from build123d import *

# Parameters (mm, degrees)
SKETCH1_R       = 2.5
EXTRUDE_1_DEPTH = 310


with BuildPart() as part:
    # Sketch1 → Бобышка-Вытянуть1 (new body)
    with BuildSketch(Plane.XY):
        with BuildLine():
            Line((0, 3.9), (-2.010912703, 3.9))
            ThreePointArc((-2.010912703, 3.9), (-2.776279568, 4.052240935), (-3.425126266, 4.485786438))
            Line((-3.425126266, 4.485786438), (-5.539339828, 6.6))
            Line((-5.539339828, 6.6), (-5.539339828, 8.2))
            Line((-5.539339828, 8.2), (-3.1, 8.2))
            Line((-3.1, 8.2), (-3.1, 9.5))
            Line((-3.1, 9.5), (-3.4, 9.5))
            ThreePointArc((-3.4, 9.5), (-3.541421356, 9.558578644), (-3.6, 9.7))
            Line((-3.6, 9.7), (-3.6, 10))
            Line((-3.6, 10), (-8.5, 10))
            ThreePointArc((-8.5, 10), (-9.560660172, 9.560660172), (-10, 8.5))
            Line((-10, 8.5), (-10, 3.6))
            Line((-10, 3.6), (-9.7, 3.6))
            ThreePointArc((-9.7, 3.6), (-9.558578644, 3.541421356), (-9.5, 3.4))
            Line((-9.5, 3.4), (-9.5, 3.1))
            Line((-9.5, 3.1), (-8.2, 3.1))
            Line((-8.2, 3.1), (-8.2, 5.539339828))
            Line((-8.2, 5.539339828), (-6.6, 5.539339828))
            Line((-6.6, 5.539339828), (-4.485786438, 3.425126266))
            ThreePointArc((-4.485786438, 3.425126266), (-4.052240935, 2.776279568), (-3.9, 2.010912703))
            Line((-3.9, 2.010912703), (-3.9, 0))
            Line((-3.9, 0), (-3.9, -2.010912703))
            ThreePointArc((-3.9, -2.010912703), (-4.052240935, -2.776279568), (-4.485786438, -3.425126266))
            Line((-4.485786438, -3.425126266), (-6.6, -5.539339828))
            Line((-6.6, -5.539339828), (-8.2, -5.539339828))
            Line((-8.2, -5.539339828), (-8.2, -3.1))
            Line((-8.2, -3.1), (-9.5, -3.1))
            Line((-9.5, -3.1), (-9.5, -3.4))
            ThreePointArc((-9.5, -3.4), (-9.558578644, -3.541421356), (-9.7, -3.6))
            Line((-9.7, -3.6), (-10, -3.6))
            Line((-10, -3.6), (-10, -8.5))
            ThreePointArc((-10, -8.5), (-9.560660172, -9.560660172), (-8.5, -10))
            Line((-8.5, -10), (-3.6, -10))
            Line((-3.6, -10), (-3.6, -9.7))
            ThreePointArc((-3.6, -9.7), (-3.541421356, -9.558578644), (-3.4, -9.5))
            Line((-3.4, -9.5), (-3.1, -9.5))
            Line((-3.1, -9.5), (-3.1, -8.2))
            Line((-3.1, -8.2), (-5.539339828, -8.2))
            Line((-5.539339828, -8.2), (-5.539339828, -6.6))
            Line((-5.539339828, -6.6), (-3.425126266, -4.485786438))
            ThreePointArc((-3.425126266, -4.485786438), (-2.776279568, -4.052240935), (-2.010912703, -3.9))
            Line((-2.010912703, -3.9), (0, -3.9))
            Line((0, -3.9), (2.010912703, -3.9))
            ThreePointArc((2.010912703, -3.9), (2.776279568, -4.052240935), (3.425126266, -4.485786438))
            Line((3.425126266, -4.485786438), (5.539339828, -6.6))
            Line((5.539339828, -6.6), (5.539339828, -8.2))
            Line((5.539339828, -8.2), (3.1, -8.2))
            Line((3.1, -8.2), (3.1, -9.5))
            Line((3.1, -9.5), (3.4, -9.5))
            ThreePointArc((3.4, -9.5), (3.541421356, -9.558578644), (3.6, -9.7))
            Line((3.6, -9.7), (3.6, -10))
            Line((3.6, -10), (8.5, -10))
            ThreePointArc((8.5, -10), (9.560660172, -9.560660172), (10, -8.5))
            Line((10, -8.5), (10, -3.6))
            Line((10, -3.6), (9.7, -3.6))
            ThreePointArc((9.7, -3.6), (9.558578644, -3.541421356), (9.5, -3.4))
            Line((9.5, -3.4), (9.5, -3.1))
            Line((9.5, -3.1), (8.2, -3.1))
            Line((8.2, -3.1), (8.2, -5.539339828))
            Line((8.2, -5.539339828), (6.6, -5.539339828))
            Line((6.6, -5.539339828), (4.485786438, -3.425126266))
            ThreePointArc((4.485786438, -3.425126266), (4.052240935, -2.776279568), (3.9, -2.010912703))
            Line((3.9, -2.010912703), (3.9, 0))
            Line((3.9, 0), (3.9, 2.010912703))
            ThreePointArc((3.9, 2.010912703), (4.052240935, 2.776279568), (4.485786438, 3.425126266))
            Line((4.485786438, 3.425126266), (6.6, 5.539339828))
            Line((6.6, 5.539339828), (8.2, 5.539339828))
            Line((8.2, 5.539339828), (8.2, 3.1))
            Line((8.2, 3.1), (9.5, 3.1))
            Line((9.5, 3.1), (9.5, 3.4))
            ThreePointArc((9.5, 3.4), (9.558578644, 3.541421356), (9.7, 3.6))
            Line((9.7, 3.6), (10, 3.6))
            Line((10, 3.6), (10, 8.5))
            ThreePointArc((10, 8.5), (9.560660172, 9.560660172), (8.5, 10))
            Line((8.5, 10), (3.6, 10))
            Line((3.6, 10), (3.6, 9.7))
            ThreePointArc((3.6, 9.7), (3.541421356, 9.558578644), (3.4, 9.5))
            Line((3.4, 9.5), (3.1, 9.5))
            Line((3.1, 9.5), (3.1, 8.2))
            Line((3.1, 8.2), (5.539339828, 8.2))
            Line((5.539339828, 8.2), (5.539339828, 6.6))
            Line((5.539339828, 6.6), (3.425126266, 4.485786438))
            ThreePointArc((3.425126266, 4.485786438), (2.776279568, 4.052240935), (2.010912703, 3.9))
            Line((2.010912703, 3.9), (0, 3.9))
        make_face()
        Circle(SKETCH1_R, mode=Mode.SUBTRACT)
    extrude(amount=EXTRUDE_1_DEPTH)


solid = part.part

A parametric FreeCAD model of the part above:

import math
import FreeCAD as App
import Part
import Sketcher
Q = App.Units.Quantity

doc = App.newDocument("Part")
body = doc.addObject("PartDesign::Body", "Body")

sketch1 = body.newObject("Sketcher::SketchObject", "Sketch")
sketch1.AttachmentSupport = (doc.getObject("XY_Plane"), [""])
sketch1.MapMode = "FlatFace"
sketch1.addGeometry([
    Part.ArcOfCircle(Part.Circle(App.Vector(-2.01, 5.9, 0), App.Vector(0, 0, 1), 2), math.radians(-135), math.radians(-90)),
    Part.LineSegment(App.Vector(-3.43, 4.49, 0), App.Vector(-5.54, 6.6, 0)),
    Part.LineSegment(App.Vector(-5.54, 6.6, 0), App.Vector(-5.54, 8.2, 0)),
    Part.LineSegment(App.Vector(-5.54, 8.2, 0), App.Vector(-3.1, 8.2, 0)),
    Part.LineSegment(App.Vector(-3.1, 8.2, 0), App.Vector(-3.1, 9.5, 0)),
    Part.LineSegment(App.Vector(-3.1, 9.5, 0), App.Vector(-3.4, 9.5, 0)),
    Part.ArcOfCircle(Part.Circle(App.Vector(-3.4, 9.7, 0), App.Vector(0, 0, 1), 0.2), math.radians(-180), math.radians(-90)),
    Part.LineSegment(App.Vector(-3.6, 9.7, 0), App.Vector(-3.6, 10, 0)),
    Part.LineSegment(App.Vector(-3.6, 10, 0), App.Vector(-8.5, 10, 0)),
    Part.ArcOfCircle(Part.Circle(App.Vector(-8.5, 8.5, 0), App.Vector(0, 0, 1), 1.5), math.radians(90), math.radians(180)),
    Part.LineSegment(App.Vector(-10, 8.5, 0), App.Vector(-10, 3.6, 0)),
    Part.LineSegment(App.Vector(-10, 3.6, 0), App.Vector(-9.7, 3.6, 0)),
    Part.ArcOfCircle(Part.Circle(App.Vector(-9.7, 3.4, 0), App.Vector(0, 0, 1), 0.2), math.radians(0), math.radians(90)),
    Part.LineSegment(App.Vector(-9.5, 3.4, 0), App.Vector(-9.5, 3.1, 0)),
    Part.LineSegment(App.Vector(-9.5, 3.1, 0), App.Vector(-8.2, 3.1, 0)),
    Part.LineSegment(App.Vector(-8.2, 3.1, 0), App.Vector(-8.2, 5.54, 0)),
    Part.LineSegment(App.Vector(-8.2, 5.54, 0), App.Vector(-6.6, 5.54, 0)),
    Part.LineSegment(App.Vector(-6.6, 5.54, 0), App.Vector(-4.49, 3.43, 0)),
    Part.ArcOfCircle(Part.Circle(App.Vector(-5.9, 2.01, 0), App.Vector(0, 0, 1), 2), math.radians(0), math.radians(45)),
    Part.LineSegment(App.Vector(-3.9, 2.01, 0), App.Vector(-3.9, -2.01, 0)),
    Part.ArcOfCircle(Part.Circle(App.Vector(-5.9, -2.01, 0), App.Vector(0, 0, 1), 2), math.radians(-45), math.radians(0)),
    Part.LineSegment(App.Vector(-4.49, -3.43, 0), App.Vector(-6.6, -5.54, 0)),
    Part.LineSegment(App.Vector(-6.6, -5.54, 0), App.Vector(-8.2, -5.54, 0)),
    Part.LineSegment(App.Vector(-8.2, -5.54, 0), App.Vector(-8.2, -3.1, 0)),
    Part.LineSegment(App.Vector(-8.2, -3.1, 0), App.Vector(-9.5, -3.1, 0)),
    Part.LineSegment(App.Vector(-9.5, -3.1, 0), App.Vector(-9.5, -3.4, 0)),
    Part.ArcOfCircle(Part.Circle(App.Vector(-9.7, -3.4, 0), App.Vector(0, 0, 1), 0.2), math.radians(-90), math.radians(0)),
    Part.LineSegment(App.Vector(-9.7, -3.6, 0), App.Vector(-10, -3.6, 0)),
    Part.LineSegment(App.Vector(-10, -3.6, 0), App.Vector(-10, -8.5, 0)),
    Part.ArcOfCircle(Part.Circle(App.Vector(-8.5, -8.5, 0), App.Vector(0, 0, 1), 1.5), math.radians(180), math.radians(270)),
    Part.LineSegment(App.Vector(-8.5, -10, 0), App.Vector(-3.6, -10, 0)),
    Part.LineSegment(App.Vector(-3.6, -10, 0), App.Vector(-3.6, -9.7, 0)),
    Part.ArcOfCircle(Part.Circle(App.Vector(-3.4, -9.7, 0), App.Vector(0, 0, 1), 0.2), math.radians(90), math.radians(180)),
    Part.LineSegment(App.Vector(-3.4, -9.5, 0), App.Vector(-3.1, -9.5, 0)),
    Part.LineSegment(App.Vector(-3.1, -9.5, 0), App.Vector(-3.1, -8.2, 0)),
    Part.LineSegment(App.Vector(-3.1, -8.2, 0), App.Vector(-5.54, -8.2, 0)),
    Part.LineSegment(App.Vector(-5.54, -8.2, 0), App.Vector(-5.54, -6.6, 0)),
    Part.LineSegment(App.Vector(-5.54, -6.6, 0), App.Vector(-3.43, -4.49, 0)),
    Part.ArcOfCircle(Part.Circle(App.Vector(-2.01, -5.9, 0), App.Vector(0, 0, 1), 2), math.radians(90), math.radians(135)),
    Part.LineSegment(App.Vector(-2.01, -3.9, 0), App.Vector(2.01, -3.9, 0)),
    Part.ArcOfCircle(Part.Circle(App.Vector(2.01, -5.9, 0), App.Vector(0, 0, 1), 2), math.radians(45), math.radians(90)),
    Part.LineSegment(App.Vector(3.43, -4.49, 0), App.Vector(5.54, -6.6, 0)),
    Part.LineSegment(App.Vector(5.54, -6.6, 0), App.Vector(5.54, -8.2, 0)),
    Part.LineSegment(App.Vector(5.54, -8.2, 0), App.Vector(3.1, -8.2, 0)),
    Part.LineSegment(App.Vector(3.1, -8.2, 0), App.Vector(3.1, -9.5, 0)),
    Part.LineSegment(App.Vector(3.1, -9.5, 0), App.Vector(3.4, -9.5, 0)),
    Part.ArcOfCircle(Part.Circle(App.Vector(3.4, -9.7, 0), App.Vector(0, 0, 1), 0.2), math.radians(0), math.radians(90)),
    Part.LineSegment(App.Vector(3.6, -9.7, 0), App.Vector(3.6, -10, 0)),
    Part.LineSegment(App.Vector(3.6, -10, 0), App.Vector(8.5, -10, 0)),
    Part.ArcOfCircle(Part.Circle(App.Vector(8.5, -8.5, 0), App.Vector(0, 0, 1), 1.5), math.radians(-90), math.radians(0)),
    Part.LineSegment(App.Vector(10, -8.5, 0), App.Vector(10, -3.6, 0)),
    Part.LineSegment(App.Vector(10, -3.6, 0), App.Vector(9.7, -3.6, 0)),
    Part.ArcOfCircle(Part.Circle(App.Vector(9.7, -3.4, 0), App.Vector(0, 0, 1), 0.2), math.radians(-180), math.radians(-90)),
    Part.LineSegment(App.Vector(9.5, -3.4, 0), App.Vector(9.5, -3.1, 0)),
    Part.LineSegment(App.Vector(9.5, -3.1, 0), App.Vector(8.2, -3.1, 0)),
    Part.LineSegment(App.Vector(8.2, -3.1, 0), App.Vector(8.2, -5.54, 0)),
    Part.LineSegment(App.Vector(8.2, -5.54, 0), App.Vector(6.6, -5.54, 0)),
    Part.LineSegment(App.Vector(6.6, -5.54, 0), App.Vector(4.49, -3.43, 0)),
    Part.ArcOfCircle(Part.Circle(App.Vector(5.9, -2.01, 0), App.Vector(0, 0, 1), 2), math.radians(180), math.radians(225)),
    Part.LineSegment(App.Vector(3.9, -2.01, 0), App.Vector(3.9, 2.01, 0)),
    Part.ArcOfCircle(Part.Circle(App.Vector(5.9, 2.01, 0), App.Vector(0, 0, 1), 2), math.radians(135), math.radians(180)),
    Part.LineSegment(App.Vector(4.49, 3.43, 0), App.Vector(6.6, 5.54, 0)),
    Part.LineSegment(App.Vector(6.6, 5.54, 0), App.Vector(8.2, 5.54, 0)),
    Part.LineSegment(App.Vector(8.2, 5.54, 0), App.Vector(8.2, 3.1, 0)),
    Part.LineSegment(App.Vector(8.2, 3.1, 0), App.Vector(9.5, 3.1, 0)),
    Part.LineSegment(App.Vector(9.5, 3.1, 0), App.Vector(9.5, 3.4, 0)),
    Part.ArcOfCircle(Part.Circle(App.Vector(9.7, 3.4, 0), App.Vector(0, 0, 1), 0.2), math.radians(90), math.radians(180)),
    Part.LineSegment(App.Vector(9.7, 3.6, 0), App.Vector(10, 3.6, 0)),
    Part.LineSegment(App.Vector(10, 3.6, 0), App.Vector(10, 8.5, 0)),
    Part.ArcOfCircle(Part.Circle(App.Vector(8.5, 8.5, 0), App.Vector(0, 0, 1), 1.5), math.radians(0), math.radians(90)),
    Part.LineSegment(App.Vector(8.5, 10, 0), App.Vector(3.6, 10, 0)),
    Part.LineSegment(App.Vector(3.6, 10, 0), App.Vector(3.6, 9.7, 0)),
    Part.ArcOfCircle(Part.Circle(App.Vector(3.4, 9.7, 0), App.Vector(0, 0, 1), 0.2), math.radians(-90), math.radians(0)),
    Part.LineSegment(App.Vector(3.4, 9.5, 0), App.Vector(3.1, 9.5, 0)),
    Part.LineSegment(App.Vector(3.1, 9.5, 0), App.Vector(3.1, 8.2, 0)),
    Part.LineSegment(App.Vector(3.1, 8.2, 0), App.Vector(5.54, 8.2, 0)),
    Part.LineSegment(App.Vector(5.54, 8.2, 0), App.Vector(5.54, 6.6, 0)),
    Part.LineSegment(App.Vector(5.54, 6.6, 0), App.Vector(3.43, 4.49, 0)),
    Part.ArcOfCircle(Part.Circle(App.Vector(2.01, 5.9, 0), App.Vector(0, 0, 1), 2), math.radians(-90), math.radians(-45)),
    Part.LineSegment(App.Vector(2.01, 3.9, 0), App.Vector(-2.01, 3.9, 0)),
    Part.Circle(App.Vector(0, 0, 0), App.Vector(0, 0, 1), 2.5),
], False)
sketch1.addConstraint([
    Sketcher.Constraint("Tangent", 0, 1, 1, 1),
    Sketcher.Constraint("Coincident", 1, 2, 2, 1),
    Sketcher.Constraint("Coincident", 2, 2, 3, 1),
    Sketcher.Constraint("Coincident", 3, 2, 4, 1),
    Sketcher.Constraint("Coincident", 4, 2, 5, 1),
    Sketcher.Constraint("Tangent", 5, 2, 6, 2),
    Sketcher.Constraint("Tangent", 6, 1, 7, 1),
    Sketcher.Constraint("Coincident", 7, 2, 8, 1),
    Sketcher.Constraint("Tangent", 8, 2, 9, 1),
    Sketcher.Constraint("Tangent", 9, 2, 10, 1),
    Sketcher.Constraint("Coincident", 10, 2, 11, 1),
    Sketcher.Constraint("Tangent", 11, 2, 12, 2),
    Sketcher.Constraint("Tangent", 12, 1, 13, 1),
    Sketcher.Constraint("Coincident", 13, 2, 14, 1),
    Sketcher.Constraint("Coincident", 14, 2, 15, 1),
    Sketcher.Constraint("Coincident", 15, 2, 16, 1),
    Sketcher.Constraint("Coincident", 16, 2, 17, 1),
    Sketcher.Constraint("Tangent", 17, 2, 18, 2),
    Sketcher.Constraint("Tangent", 18, 1, 19, 1),
    Sketcher.Constraint("Tangent", 19, 2, 20, 2),
    Sketcher.Constraint("Tangent", 20, 1, 21, 1),
    Sketcher.Constraint("Coincident", 21, 2, 22, 1),
    Sketcher.Constraint("Coincident", 22, 2, 23, 1),
    Sketcher.Constraint("Coincident", 23, 2, 24, 1),
    Sketcher.Constraint("Coincident", 24, 2, 25, 1),
    Sketcher.Constraint("Tangent", 25, 2, 26, 2),
    Sketcher.Constraint("Tangent", 26, 1, 27, 1),
    Sketcher.Constraint("Coincident", 27, 2, 28, 1),
    Sketcher.Constraint("Tangent", 28, 2, 29, 1),
    Sketcher.Constraint("Tangent", 29, 2, 30, 1),
    Sketcher.Constraint("Coincident", 30, 2, 31, 1),
    Sketcher.Constraint("Tangent", 31, 2, 32, 2),
    Sketcher.Constraint("Tangent", 32, 1, 33, 1),
    Sketcher.Constraint("Coincident", 33, 2, 34, 1),
    Sketcher.Constraint("Coincident", 34, 2, 35, 1),
    Sketcher.Constraint("Coincident", 35, 2, 36, 1),
    Sketcher.Constraint("Coincident", 36, 2, 37, 1),
    Sketcher.Constraint("Tangent", 37, 2, 38, 2),
    Sketcher.Constraint("Tangent", 38, 1, 39, 1),
    Sketcher.Constraint("Tangent", 39, 2, 40, 2),
    Sketcher.Constraint("Tangent", 40, 1, 41, 1),
    Sketcher.Constraint("Coincident", 41, 2, 42, 1),
    Sketcher.Constraint("Coincident", 42, 2, 43, 1),
    Sketcher.Constraint("Coincident", 43, 2, 44, 1),
    Sketcher.Constraint("Coincident", 44, 2, 45, 1),
    Sketcher.Constraint("Tangent", 45, 2, 46, 2),
    Sketcher.Constraint("Tangent", 46, 1, 47, 1),
    Sketcher.Constraint("Coincident", 47, 2, 48, 1),
    Sketcher.Constraint("Tangent", 48, 2, 49, 1),
    Sketcher.Constraint("Tangent", 49, 2, 50, 1),
    Sketcher.Constraint("Coincident", 50, 2, 51, 1),
    Sketcher.Constraint("Tangent", 51, 2, 52, 2),
    Sketcher.Constraint("Tangent", 52, 1, 53, 1),
    Sketcher.Constraint("Coincident", 53, 2, 54, 1),
    Sketcher.Constraint("Coincident", 54, 2, 55, 1),
    Sketcher.Constraint("Coincident", 55, 2, 56, 1),
    Sketcher.Constraint("Coincident", 56, 2, 57, 1),
    Sketcher.Constraint("Tangent", 57, 2, 58, 2),
    Sketcher.Constraint("Tangent", 58, 1, 59, 1),
    Sketcher.Constraint("Tangent", 59, 2, 60, 2),
    Sketcher.Constraint("Tangent", 60, 1, 61, 1),
    Sketcher.Constraint("Coincident", 61, 2, 62, 1),
    Sketcher.Constraint("Coincident", 62, 2, 63, 1),
    Sketcher.Constraint("Coincident", 63, 2, 64, 1),
    Sketcher.Constraint("Coincident", 64, 2, 65, 1),
    Sketcher.Constraint("Tangent", 65, 2, 66, 2),
    Sketcher.Constraint("Tangent", 66, 1, 67, 1),
    Sketcher.Constraint("Coincident", 67, 2, 68, 1),
    Sketcher.Constraint("Tangent", 68, 2, 69, 1),
    Sketcher.Constraint("Tangent", 69, 2, 70, 1),
    Sketcher.Constraint("Coincident", 70, 2, 71, 1),
    Sketcher.Constraint("Tangent", 71, 2, 72, 2),
    Sketcher.Constraint("Tangent", 72, 1, 73, 1),
    Sketcher.Constraint("Coincident", 73, 2, 74, 1),
    Sketcher.Constraint("Coincident", 74, 2, 75, 1),
    Sketcher.Constraint("Coincident", 75, 2, 76, 1),
    Sketcher.Constraint("Coincident", 76, 2, 77, 1),
    Sketcher.Constraint("Tangent", 77, 2, 78, 2),
    Sketcher.Constraint("Tangent", 78, 1, 79, 1),
    Sketcher.Constraint("Tangent", 79, 2, 0, 2),
    Sketcher.Constraint("Vertical", 2),
    Sketcher.Constraint("Horizontal", 3),
    Sketcher.Constraint("Vertical", 4),
    Sketcher.Constraint("Horizontal", 5),
    Sketcher.Constraint("Vertical", 7),
    Sketcher.Constraint("Horizontal", 8),
    Sketcher.Constraint("Vertical", 10),
    Sketcher.Constraint("Horizontal", 11),
    Sketcher.Constraint("Vertical", 13),
    Sketcher.Constraint("Horizontal", 14),
    Sketcher.Constraint("Vertical", 15),
    Sketcher.Constraint("Horizontal", 16),
    Sketcher.Constraint("Vertical", 19),
    Sketcher.Constraint("Horizontal", 22),
    Sketcher.Constraint("Vertical", 23),
    Sketcher.Constraint("Horizontal", 24),
    Sketcher.Constraint("Vertical", 25),
    Sketcher.Constraint("Horizontal", 27),
    Sketcher.Constraint("Vertical", 28),
    Sketcher.Constraint("Horizontal", 30),
    Sketcher.Constraint("Vertical", 31),
    Sketcher.Constraint("Horizontal", 33),
    Sketcher.Constraint("Vertical", 34),
    Sketcher.Constraint("Horizontal", 35),
    Sketcher.Constraint("Vertical", 36),
    Sketcher.Constraint("Horizontal", 39),
    Sketcher.Constraint("Vertical", 42),
    Sketcher.Constraint("Horizontal", 43),
    Sketcher.Constraint("Vertical", 44),
    Sketcher.Constraint("Horizontal", 45),
    Sketcher.Constraint("Vertical", 47),
    Sketcher.Constraint("Horizontal", 48),
    Sketcher.Constraint("Vertical", 50),
    Sketcher.Constraint("Horizontal", 51),
    Sketcher.Constraint("Vertical", 53),
    Sketcher.Constraint("Horizontal", 54),
    Sketcher.Constraint("Vertical", 55),
    Sketcher.Constraint("Horizontal", 56),
    Sketcher.Constraint("Vertical", 59),
    Sketcher.Constraint("Horizontal", 62),
    Sketcher.Constraint("Vertical", 63),
    Sketcher.Constraint("Horizontal", 64),
    Sketcher.Constraint("Vertical", 65),
    Sketcher.Constraint("Horizontal", 67),
    Sketcher.Constraint("Vertical", 68),
    Sketcher.Constraint("Horizontal", 70),
    Sketcher.Constraint("Vertical", 71),
    Sketcher.Constraint("Horizontal", 73),
    Sketcher.Constraint("Vertical", 74),
    Sketcher.Constraint("Horizontal", 75),
    Sketcher.Constraint("Vertical", 76),
    Sketcher.Constraint("Horizontal", 79),
    Sketcher.Constraint("Coincident", 80, 3, -1, 1),
    Sketcher.Constraint("Equal", 6, 12),
    Sketcher.Constraint("Equal", 0, 18),
    Sketcher.Constraint("Equal", 18, 20),
    Sketcher.Constraint("Equal", 12, 26),
    Sketcher.Constraint("Equal", 9, 29),
    Sketcher.Constraint("Equal", 26, 32),
    Sketcher.Constraint("Equal", 20, 38),
    Sketcher.Constraint("Equal", 38, 40),
    Sketcher.Constraint("Equal", 32, 46),
    Sketcher.Constraint("Equal", 29, 49),
    Sketcher.Constraint("Equal", 46, 52),
    Sketcher.Constraint("Equal", 40, 58),
    Sketcher.Constraint("Equal", 58, 60),
    Sketcher.Constraint("Equal", 52, 66),
    Sketcher.Constraint("Equal", 49, 69),
    Sketcher.Constraint("Equal", 66, 72),
    Sketcher.Constraint("Equal", 60, 78),
    Sketcher.Constraint("Symmetric", 0, 3, 40, 3, -1, 1),
    Sketcher.Constraint("Symmetric", 6, 3, 46, 3, -1, 1),
    Sketcher.Constraint("Symmetric", 9, 3, 49, 3, -1, 1),
    Sketcher.Constraint("Symmetric", 12, 3, 52, 3, -1, 1),
    Sketcher.Constraint("Symmetric", 18, 3, 58, 3, -1, 1),
    Sketcher.Constraint("Symmetric", 26, 3, 66, 3, -1, 1),
    Sketcher.Constraint("Symmetric", 29, 3, 69, 3, -1, 1),
    Sketcher.Constraint("Symmetric", 32, 3, 72, 3, -1, 1),
    Sketcher.Constraint("Symmetric", 1, 2, 41, 2, -1, 1),
    Sketcher.Constraint("Symmetric", 3, 2, 43, 2, -1, 1),
    Sketcher.Constraint("Symmetric", 14, 2, 54, 2, -1, 1),
    Sketcher.Constraint("Symmetric", 16, 2, 56, 2, -1, 1),
    Sketcher.Constraint("Symmetric", 20, 1, 60, 1, -1, 1),
    Sketcher.Constraint("Symmetric", 22, 2, 62, 2, -1, 1),
    Sketcher.Constraint("Symmetric", 34, 2, 74, 2, -1, 1),
    Sketcher.Constraint("Symmetric", 36, 2, 76, 2, -1, 1),
    Sketcher.Constraint("Symmetric", 32, 3, 46, 3, -2),
    Sketcher.Constraint("Symmetric", 29, 3, 49, 3, -2),
    Sketcher.Constraint("Symmetric", 26, 3, 52, 3, -2),
    Sketcher.Constraint("Symmetric", 37, 2, 40, 1, -2),
    Sketcher.Constraint("Symmetric", 35, 2, 42, 2, -2),
    Sketcher.Constraint("Symmetric", 23, 2, 54, 2, -2),
    Sketcher.Constraint("Symmetric", 21, 2, 56, 2, -2),
    Sketcher.Constraint("Parallel", 1, 17),
    Sketcher.Constraint("Perpendicular", 17, 21),
    Sketcher.Constraint("Parallel", 21, 37),
    Sketcher.Constraint("Parallel", 61, 77),
    Sketcher.Constraint("Horizontal", 14, 2, 63, 2),
    Sketcher.Constraint("Vertical", 4, 2, 33, 2),
    Sketcher.Constraint("Equal", 5, 11),
    Sketcher.Constraint("Equal", 62, 2),
    Sketcher.Constraint("Equal", 64, 4),
    Sketcher.Constraint("Equal", 73, 7),
    Sketcher.Constraint("Equal", 70, 10),
    Sketcher.Constraint("Equal", 7, 13),
    Sketcher.Constraint("Equal", 75, 15),
    Sketcher.Constraint("Equal", 79, 19),
    Sketcher.Constraint("Equal", 1, 17),
    Sketcher.Constraint("Diameter", 80, Q("5 mm")),
    Sketcher.Constraint("Radius", 0, Q("2 mm")),
    Sketcher.Constraint("Radius", 6, Q("0.2 mm")),
    Sketcher.Constraint("Radius", 9, Q("1.5 mm")),
    Sketcher.Constraint("DistanceX", 5, 2, 5, 1, Q("0.3 mm")),
    Sketcher.Constraint("DistanceX", 8, 2, 8, 1, Q("4.9 mm")),
    Sketcher.Constraint("DistanceX", 14, 1, 14, 2, Q("1.3 mm")),
    Sketcher.Constraint("DistanceX", 16, 1, 16, 2, Q("1.6 mm")),
    Sketcher.Constraint("DistanceY", -1, 1, 7, 2, Q("10 mm")),
    Sketcher.Constraint("DistanceY", -1, 1, 0, 3, Q("5.9 mm")),
    Sketcher.Constraint("DistanceX", 3, 1, 3, 2, Q("2.43934 mm")),
])
pad1 = body.newObject("PartDesign::Pad", "Pad")
pad1.Profile = sketch1
pad1.Length = 310

doc.recompute()
